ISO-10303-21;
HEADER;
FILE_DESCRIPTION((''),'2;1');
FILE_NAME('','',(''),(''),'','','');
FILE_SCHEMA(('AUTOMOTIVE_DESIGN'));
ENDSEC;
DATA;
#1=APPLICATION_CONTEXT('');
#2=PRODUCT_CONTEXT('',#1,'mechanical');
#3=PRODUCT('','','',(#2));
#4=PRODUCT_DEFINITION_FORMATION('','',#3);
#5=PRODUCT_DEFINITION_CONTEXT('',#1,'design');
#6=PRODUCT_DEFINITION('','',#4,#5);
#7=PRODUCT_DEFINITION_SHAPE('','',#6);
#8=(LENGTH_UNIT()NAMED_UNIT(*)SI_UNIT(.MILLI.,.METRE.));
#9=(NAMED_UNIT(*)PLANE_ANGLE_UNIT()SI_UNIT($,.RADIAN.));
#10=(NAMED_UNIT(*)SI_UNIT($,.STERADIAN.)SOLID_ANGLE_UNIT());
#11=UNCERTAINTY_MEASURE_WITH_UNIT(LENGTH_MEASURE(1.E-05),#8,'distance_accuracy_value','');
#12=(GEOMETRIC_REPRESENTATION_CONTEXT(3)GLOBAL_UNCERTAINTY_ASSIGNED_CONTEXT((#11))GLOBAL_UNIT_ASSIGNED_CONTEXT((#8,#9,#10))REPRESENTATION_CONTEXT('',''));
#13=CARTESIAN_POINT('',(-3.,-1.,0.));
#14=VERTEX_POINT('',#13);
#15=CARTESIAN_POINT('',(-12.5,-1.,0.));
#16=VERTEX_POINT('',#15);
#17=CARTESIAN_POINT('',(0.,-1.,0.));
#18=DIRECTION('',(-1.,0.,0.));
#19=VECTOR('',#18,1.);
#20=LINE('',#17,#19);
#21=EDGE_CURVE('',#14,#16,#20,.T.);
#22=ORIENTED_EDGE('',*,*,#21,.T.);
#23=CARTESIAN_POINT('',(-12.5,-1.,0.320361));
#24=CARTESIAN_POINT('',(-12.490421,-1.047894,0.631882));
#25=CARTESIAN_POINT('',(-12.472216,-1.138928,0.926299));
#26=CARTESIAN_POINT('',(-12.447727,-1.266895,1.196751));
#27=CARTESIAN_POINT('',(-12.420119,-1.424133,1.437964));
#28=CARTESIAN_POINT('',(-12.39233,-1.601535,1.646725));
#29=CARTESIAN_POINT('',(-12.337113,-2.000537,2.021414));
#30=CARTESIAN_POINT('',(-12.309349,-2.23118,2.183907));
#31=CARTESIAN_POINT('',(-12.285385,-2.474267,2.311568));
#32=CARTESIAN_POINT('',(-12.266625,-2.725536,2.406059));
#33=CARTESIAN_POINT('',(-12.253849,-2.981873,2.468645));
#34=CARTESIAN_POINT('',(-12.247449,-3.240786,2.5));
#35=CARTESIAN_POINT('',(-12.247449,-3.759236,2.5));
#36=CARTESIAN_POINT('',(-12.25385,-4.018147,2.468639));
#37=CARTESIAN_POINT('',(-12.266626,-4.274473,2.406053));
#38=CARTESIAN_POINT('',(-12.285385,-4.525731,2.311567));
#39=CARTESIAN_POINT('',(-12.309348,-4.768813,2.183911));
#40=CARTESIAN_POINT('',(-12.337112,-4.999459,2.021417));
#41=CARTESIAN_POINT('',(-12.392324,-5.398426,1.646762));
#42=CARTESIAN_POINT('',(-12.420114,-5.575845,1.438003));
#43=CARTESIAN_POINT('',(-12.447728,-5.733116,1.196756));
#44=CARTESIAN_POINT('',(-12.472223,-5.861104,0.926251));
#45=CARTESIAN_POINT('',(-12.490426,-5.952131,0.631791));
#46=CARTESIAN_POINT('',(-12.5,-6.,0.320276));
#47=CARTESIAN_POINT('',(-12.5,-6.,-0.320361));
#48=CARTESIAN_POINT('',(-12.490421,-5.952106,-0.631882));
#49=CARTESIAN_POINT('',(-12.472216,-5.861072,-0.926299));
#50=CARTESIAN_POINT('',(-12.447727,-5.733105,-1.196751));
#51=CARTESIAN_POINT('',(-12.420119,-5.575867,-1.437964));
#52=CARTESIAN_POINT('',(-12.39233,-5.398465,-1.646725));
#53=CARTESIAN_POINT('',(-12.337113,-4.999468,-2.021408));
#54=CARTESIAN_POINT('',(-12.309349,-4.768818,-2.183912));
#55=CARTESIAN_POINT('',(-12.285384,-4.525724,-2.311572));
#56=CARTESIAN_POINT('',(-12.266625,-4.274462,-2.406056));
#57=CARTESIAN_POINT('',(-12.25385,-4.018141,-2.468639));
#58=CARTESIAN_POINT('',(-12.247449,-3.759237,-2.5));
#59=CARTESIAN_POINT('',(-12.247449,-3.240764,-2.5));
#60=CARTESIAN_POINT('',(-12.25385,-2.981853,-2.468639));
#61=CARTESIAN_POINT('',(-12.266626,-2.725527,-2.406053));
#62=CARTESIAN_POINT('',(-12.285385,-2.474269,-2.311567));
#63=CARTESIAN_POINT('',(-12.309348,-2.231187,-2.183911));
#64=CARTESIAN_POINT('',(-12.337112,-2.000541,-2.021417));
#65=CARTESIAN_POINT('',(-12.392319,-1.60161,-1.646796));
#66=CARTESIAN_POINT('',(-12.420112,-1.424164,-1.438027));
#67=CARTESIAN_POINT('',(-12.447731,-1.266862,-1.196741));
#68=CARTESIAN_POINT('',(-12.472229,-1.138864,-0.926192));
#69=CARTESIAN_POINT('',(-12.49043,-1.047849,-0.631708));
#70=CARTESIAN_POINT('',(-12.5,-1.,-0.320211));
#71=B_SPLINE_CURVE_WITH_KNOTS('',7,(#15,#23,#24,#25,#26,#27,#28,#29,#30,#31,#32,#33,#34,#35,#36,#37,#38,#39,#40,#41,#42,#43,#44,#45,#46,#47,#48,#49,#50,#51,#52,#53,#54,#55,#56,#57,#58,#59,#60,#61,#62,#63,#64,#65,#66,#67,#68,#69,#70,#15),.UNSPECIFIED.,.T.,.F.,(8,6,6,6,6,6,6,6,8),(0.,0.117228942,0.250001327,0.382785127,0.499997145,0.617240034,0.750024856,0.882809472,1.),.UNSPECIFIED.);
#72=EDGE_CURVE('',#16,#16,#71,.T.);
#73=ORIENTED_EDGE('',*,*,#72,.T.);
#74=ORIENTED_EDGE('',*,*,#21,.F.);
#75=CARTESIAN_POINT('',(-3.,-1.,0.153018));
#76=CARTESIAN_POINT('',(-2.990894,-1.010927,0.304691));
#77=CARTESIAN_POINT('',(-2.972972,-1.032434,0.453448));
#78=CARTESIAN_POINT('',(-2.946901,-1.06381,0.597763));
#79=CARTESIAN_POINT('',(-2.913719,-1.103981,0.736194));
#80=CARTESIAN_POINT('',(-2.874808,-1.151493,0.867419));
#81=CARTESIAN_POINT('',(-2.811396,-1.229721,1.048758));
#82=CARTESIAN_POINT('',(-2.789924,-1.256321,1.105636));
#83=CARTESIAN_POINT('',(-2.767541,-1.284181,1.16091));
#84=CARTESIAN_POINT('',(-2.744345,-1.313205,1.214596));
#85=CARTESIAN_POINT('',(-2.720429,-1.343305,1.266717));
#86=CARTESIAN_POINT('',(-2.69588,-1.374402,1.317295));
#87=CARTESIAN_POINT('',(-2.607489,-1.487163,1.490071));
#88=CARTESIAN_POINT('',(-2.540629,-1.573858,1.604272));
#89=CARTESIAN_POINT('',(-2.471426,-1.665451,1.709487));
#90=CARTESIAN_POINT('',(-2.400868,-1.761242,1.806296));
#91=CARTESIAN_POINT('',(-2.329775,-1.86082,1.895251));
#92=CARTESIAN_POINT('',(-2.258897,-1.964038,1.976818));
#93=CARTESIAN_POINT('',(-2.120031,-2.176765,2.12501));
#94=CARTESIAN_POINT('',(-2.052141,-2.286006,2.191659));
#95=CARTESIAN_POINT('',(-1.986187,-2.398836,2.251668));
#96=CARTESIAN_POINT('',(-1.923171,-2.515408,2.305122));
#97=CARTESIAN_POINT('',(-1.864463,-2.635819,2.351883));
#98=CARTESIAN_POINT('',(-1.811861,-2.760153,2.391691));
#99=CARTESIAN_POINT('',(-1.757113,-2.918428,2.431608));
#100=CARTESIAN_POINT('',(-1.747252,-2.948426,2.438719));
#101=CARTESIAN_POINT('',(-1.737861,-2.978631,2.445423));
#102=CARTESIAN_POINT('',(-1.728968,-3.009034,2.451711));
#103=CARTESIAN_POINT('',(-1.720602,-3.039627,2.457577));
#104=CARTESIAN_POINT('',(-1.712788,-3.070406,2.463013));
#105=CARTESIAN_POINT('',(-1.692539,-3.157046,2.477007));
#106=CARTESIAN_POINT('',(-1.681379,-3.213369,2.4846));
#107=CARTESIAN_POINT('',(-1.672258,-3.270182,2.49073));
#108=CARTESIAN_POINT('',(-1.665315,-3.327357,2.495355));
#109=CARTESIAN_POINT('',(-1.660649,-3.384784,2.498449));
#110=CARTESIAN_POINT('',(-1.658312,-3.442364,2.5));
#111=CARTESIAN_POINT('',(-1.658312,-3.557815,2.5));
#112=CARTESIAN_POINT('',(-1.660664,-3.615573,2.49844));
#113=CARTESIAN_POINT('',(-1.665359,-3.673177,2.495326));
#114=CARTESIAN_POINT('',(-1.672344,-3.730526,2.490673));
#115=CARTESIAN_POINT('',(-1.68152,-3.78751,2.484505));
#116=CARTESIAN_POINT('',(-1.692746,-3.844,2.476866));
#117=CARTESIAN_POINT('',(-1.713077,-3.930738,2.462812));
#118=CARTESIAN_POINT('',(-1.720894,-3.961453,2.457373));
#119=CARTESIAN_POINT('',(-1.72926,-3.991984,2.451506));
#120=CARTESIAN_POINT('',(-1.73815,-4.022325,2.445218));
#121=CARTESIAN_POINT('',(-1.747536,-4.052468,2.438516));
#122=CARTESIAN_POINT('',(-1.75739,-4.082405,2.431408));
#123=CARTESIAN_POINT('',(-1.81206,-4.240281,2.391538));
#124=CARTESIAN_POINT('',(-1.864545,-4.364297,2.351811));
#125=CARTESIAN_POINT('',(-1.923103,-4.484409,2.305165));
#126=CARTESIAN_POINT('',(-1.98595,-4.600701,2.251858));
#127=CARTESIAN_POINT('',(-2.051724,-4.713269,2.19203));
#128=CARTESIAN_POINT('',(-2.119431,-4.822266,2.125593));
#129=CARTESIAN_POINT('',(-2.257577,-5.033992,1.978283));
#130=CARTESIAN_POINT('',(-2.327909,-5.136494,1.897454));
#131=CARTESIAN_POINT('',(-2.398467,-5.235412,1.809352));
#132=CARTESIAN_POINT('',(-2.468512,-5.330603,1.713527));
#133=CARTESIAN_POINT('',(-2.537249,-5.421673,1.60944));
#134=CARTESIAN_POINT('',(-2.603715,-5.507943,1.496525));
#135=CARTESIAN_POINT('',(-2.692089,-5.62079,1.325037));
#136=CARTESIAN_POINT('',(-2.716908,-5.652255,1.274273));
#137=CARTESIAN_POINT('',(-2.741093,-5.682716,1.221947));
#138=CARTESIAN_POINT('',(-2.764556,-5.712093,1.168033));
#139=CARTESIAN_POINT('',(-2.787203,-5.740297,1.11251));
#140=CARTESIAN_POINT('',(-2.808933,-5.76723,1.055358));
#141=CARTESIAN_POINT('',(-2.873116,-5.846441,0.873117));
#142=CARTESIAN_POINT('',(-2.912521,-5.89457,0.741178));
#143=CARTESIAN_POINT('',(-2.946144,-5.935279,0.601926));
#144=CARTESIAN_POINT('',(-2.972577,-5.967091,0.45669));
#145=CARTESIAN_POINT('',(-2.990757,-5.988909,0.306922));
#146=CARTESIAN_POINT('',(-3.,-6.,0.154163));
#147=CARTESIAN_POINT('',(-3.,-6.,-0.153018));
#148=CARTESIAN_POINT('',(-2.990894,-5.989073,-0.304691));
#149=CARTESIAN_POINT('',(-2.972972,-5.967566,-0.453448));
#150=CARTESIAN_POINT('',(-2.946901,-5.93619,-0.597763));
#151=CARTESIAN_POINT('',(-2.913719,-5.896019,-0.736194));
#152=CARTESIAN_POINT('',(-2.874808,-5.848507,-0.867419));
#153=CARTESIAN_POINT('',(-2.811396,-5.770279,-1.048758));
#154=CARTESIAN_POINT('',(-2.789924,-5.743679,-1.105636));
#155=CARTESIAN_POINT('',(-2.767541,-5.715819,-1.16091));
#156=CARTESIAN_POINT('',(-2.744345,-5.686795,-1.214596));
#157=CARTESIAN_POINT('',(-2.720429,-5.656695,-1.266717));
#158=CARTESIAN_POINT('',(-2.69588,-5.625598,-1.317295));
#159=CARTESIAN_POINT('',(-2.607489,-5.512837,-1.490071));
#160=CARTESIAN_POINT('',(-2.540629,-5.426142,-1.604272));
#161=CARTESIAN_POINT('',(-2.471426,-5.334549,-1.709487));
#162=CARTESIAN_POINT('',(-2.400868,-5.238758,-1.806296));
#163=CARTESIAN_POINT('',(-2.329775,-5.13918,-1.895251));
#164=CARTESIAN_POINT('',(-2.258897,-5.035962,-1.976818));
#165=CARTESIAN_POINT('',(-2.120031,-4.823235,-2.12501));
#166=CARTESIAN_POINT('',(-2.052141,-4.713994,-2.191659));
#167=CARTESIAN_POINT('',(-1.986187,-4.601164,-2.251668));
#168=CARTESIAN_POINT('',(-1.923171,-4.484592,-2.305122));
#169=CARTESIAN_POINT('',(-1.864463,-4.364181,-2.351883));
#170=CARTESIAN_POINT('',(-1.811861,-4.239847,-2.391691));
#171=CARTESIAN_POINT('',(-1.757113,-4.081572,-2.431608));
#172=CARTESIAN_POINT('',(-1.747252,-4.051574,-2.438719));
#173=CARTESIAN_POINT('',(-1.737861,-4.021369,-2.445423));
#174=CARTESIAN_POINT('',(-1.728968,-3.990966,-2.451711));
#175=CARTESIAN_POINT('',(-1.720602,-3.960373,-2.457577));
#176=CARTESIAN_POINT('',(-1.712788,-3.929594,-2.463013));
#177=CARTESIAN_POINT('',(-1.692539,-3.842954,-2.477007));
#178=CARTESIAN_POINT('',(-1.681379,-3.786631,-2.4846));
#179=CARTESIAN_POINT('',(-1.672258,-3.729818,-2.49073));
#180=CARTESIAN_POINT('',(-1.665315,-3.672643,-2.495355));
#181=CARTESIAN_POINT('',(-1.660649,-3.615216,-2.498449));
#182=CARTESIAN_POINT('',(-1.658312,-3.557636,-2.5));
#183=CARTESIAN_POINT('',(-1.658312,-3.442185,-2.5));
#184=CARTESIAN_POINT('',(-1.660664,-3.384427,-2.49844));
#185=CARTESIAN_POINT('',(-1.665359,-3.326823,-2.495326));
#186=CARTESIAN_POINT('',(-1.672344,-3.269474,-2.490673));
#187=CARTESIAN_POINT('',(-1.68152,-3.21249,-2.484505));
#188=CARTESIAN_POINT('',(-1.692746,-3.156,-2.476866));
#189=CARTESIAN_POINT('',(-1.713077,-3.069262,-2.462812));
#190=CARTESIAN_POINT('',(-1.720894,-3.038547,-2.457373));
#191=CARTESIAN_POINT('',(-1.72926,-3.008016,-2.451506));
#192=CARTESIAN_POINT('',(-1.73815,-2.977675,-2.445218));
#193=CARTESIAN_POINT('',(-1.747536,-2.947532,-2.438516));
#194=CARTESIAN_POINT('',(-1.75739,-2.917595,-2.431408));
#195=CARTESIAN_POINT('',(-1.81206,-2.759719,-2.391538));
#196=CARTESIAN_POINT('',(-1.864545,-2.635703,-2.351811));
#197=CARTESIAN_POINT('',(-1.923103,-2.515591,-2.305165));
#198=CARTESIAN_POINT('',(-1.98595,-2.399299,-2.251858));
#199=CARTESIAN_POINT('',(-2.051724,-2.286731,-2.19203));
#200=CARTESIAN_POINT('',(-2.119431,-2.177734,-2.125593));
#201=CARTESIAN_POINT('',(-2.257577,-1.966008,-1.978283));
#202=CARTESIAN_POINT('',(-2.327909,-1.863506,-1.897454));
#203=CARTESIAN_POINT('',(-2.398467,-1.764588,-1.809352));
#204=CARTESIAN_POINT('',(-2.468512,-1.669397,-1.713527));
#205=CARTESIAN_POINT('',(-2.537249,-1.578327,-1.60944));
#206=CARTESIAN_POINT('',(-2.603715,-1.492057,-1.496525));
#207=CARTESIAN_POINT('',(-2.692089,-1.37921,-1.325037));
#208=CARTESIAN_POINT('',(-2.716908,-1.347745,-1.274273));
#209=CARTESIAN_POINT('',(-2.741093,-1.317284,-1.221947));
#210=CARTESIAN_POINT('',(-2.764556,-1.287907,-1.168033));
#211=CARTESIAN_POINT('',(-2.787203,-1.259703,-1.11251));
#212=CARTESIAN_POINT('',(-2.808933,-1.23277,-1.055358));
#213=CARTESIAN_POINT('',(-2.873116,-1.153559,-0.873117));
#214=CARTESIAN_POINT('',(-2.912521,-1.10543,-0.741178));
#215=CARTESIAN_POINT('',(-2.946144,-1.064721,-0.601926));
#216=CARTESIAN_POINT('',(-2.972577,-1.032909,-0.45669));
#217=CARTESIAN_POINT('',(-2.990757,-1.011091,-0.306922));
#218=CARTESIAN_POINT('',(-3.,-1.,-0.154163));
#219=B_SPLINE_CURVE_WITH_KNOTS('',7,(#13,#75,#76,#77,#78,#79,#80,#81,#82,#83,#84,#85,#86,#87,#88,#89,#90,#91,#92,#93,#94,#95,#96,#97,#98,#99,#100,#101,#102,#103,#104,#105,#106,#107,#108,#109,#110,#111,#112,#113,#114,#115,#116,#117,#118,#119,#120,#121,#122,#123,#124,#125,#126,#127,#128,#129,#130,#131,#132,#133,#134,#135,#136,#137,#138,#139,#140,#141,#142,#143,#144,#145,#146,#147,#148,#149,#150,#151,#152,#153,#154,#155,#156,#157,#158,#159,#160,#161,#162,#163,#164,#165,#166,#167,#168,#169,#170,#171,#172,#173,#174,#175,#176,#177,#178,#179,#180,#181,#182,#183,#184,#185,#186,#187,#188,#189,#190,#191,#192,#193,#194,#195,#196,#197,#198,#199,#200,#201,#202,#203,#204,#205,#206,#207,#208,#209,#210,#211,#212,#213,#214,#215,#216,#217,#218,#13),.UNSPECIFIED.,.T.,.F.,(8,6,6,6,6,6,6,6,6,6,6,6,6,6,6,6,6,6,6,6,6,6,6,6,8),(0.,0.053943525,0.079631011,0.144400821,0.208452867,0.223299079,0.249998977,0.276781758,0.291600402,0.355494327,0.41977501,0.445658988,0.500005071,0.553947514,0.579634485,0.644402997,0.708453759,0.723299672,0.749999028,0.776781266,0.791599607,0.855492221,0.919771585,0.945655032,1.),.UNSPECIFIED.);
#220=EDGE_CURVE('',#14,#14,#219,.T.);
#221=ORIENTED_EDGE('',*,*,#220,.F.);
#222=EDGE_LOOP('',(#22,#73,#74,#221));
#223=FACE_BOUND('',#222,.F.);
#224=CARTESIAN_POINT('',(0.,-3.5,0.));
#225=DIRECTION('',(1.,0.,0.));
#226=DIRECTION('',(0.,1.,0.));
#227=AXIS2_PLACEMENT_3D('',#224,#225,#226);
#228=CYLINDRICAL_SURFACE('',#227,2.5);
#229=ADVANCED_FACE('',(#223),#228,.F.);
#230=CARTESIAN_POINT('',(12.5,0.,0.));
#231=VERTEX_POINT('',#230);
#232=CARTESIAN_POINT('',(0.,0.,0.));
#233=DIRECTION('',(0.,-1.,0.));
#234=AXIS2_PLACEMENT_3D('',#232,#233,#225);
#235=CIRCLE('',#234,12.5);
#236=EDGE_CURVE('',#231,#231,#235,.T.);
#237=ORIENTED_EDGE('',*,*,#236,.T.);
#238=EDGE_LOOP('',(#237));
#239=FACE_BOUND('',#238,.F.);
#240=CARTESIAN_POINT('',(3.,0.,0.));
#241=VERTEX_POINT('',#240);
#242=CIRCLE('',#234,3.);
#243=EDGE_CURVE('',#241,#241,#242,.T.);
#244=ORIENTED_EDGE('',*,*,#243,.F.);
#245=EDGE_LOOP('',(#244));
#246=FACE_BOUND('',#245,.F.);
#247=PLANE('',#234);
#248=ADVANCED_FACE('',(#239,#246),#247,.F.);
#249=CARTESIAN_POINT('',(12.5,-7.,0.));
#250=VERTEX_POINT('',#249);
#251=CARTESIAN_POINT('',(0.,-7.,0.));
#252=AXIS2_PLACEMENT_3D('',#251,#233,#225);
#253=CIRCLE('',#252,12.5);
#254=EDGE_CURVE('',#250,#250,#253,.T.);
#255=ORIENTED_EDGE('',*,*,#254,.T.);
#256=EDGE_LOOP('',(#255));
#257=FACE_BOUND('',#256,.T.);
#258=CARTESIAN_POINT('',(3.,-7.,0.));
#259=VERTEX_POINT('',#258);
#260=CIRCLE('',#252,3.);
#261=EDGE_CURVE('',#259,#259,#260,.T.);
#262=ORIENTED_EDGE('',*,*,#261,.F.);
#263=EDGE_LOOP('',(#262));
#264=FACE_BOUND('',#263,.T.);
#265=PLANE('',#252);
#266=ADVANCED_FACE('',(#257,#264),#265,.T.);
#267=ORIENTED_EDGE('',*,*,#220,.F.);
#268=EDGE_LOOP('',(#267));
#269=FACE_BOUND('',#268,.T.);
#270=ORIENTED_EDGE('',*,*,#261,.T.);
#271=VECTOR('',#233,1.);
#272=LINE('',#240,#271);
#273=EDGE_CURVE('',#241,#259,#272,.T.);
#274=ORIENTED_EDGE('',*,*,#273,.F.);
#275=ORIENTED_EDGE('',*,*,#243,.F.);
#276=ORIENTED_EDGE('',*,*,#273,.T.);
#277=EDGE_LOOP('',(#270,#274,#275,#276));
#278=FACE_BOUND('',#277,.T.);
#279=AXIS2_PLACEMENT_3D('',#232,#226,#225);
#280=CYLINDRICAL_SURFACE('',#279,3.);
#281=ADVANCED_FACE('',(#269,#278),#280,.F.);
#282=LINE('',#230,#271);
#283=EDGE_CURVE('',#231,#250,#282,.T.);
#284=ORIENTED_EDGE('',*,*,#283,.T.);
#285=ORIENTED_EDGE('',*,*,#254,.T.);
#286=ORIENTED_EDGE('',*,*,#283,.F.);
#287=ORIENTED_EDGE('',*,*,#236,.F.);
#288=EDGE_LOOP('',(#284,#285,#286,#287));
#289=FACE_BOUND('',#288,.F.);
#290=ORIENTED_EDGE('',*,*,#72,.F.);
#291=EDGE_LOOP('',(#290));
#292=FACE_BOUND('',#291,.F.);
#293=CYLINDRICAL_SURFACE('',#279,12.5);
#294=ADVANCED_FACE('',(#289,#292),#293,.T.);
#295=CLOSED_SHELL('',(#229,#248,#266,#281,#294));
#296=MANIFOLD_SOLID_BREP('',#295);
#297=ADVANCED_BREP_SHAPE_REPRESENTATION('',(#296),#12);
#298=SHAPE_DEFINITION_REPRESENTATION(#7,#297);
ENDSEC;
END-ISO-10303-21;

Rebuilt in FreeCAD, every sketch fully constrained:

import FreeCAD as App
import Part
import Sketcher
from FreeCAD import Vector
Q = App.Units.Quantity

doc = App.newDocument("Part")
body = doc.addObject("PartDesign::Body", "Body")

sketch1 = doc.addObject("Sketcher::SketchObject", "Sketch")
body.addObject(sketch1)
sketch1.AttachmentSupport = (doc.XZ_Plane, [""])
sketch1.MapMode = "FlatFace"
sketch1.addGeometry([
    Part.Circle(Vector(0, 0, 0), Vector(0, 0, 1), 12.5),
    Part.Circle(Vector(0, 0, 0), Vector(0, 0, 1), 3),
], False)
sketch1.addConstraint([
    Sketcher.Constraint("Coincident", 0, 3, -1, 1),
    Sketcher.Constraint("Coincident", 1, 3, -1, 1),
    Sketcher.Constraint("Diameter", 0, Q("25 mm")),
    Sketcher.Constraint("Diameter", 1, Q("6 mm")),
])
pad1 = doc.addObject("PartDesign::Pad", "Pad")
body.addObject(pad1)
pad1.Profile = sketch1
pad1.Length = 7

sketch2 = doc.addObject("Sketcher::SketchObject", "Sketch001")
body.addObject(sketch2)
sketch2.AttachmentSupport = (doc.YZ_Plane, [""])
sketch2.MapMode = "FlatFace"
sketch2.addGeometry(Part.Circle(Vector(-3.5, 0, 0), Vector(0, 0, 1), 2.5), False)
sketch2.addConstraint([
    Sketcher.Constraint("PointOnObject", 0, 3, -1),
    Sketcher.Constraint("Diameter", 0, Q("5 mm")),
    Sketcher.Constraint("DistanceX", 0, 3, -1, 1, Q("3.5 mm")),
])
pocket1 = doc.addObject("PartDesign::Pocket", "Pocket")
body.addObject(pocket1)
pocket1.Profile = sketch2
pocket1.Length = 25

doc.recompute()
